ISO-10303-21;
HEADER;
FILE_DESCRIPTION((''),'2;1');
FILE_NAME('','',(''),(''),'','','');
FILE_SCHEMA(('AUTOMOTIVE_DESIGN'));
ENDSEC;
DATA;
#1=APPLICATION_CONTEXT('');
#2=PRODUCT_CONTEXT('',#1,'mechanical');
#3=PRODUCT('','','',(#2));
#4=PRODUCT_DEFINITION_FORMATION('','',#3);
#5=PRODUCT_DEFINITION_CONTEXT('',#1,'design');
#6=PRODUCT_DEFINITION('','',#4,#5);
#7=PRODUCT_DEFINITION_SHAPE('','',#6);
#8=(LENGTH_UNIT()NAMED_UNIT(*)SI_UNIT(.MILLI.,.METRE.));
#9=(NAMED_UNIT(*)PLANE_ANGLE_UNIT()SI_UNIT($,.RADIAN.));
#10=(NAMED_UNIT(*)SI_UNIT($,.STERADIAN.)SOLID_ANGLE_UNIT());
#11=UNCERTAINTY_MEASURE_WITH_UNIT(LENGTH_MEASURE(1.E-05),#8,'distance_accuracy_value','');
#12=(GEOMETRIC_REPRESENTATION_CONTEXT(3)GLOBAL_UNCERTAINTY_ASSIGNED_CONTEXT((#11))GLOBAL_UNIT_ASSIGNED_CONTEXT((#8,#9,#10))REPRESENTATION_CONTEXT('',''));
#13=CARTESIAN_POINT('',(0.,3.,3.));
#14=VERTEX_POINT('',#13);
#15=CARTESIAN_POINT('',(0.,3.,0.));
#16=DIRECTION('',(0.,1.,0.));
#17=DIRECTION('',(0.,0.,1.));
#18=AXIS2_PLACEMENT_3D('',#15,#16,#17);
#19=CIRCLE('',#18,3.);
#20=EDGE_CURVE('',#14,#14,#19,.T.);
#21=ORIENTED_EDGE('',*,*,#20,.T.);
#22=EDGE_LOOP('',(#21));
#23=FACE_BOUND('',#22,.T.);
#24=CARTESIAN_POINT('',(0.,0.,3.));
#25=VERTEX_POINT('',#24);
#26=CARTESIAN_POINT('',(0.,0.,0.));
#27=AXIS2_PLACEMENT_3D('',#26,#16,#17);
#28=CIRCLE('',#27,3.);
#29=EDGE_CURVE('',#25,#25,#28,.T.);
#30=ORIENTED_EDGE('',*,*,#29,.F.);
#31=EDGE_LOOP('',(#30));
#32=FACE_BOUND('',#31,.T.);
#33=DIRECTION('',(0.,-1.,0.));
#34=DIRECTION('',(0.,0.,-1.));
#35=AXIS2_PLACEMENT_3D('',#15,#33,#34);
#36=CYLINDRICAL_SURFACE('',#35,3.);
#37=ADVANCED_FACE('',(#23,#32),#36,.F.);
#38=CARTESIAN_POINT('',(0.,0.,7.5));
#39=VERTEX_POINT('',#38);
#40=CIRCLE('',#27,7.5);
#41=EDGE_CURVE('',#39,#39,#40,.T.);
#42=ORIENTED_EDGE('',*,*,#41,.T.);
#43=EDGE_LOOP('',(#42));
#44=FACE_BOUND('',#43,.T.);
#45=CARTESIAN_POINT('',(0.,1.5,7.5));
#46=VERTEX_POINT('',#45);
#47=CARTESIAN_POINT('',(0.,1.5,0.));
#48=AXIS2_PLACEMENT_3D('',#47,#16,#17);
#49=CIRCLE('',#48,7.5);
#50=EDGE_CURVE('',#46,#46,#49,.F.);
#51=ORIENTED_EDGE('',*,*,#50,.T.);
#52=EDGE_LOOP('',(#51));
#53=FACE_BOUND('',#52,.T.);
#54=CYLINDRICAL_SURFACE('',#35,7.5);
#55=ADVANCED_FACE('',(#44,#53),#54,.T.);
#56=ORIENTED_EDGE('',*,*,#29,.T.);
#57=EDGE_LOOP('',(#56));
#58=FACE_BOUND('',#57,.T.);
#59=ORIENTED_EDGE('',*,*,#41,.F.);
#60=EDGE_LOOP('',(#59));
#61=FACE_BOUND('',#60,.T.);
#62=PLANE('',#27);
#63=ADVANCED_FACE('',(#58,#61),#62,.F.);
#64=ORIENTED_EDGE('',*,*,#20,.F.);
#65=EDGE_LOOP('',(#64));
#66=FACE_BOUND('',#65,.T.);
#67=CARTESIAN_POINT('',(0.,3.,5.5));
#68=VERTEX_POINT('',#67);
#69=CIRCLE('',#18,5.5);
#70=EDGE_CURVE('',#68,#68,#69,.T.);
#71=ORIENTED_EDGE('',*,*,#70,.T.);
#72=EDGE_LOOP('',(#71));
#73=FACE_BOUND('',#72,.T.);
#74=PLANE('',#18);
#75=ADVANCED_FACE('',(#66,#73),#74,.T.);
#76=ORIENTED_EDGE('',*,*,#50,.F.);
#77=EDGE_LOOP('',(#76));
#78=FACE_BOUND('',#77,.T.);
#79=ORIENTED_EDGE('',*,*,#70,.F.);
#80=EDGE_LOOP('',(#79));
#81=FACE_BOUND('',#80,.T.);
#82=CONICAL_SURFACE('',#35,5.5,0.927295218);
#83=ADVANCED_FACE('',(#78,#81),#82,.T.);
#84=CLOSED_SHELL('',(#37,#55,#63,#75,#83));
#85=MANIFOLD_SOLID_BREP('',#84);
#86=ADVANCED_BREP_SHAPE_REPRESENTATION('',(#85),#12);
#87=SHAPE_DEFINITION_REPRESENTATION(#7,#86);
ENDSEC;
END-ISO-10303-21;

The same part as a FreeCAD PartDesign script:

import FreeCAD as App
import Part
import Sketcher
Q = App.Units.Quantity


def edges_at(feature, points):
    """Names of the edges that pass closest to the given points."""
    edges = feature.Shape.Edges
    near = lambda p: min(range(len(edges)), key=lambda i: edges[i].distToShape(Part.Vertex(*p))[0])
    return sorted({f"Edge{near(p) + 1}" for p in points})

doc = App.newDocument("Part")
body = doc.addObject("PartDesign::Body", "Body")

sketch1 = body.newObject("Sketcher::SketchObject", "Sketch")
sketch1.AttachmentSupport = (doc.getObject("XZ_Plane"), [""])
sketch1.MapMode = "FlatFace"
sketch1.addGeometry(Part.Circle(App.Vector(0, 0, 0), App.Vector(0, 0, 1), 7.5), False)
sketch1.addGeometry(Part.Circle(App.Vector(0, 0, 0), App.Vector(0, 0, 1), 3), False)
sketch1.addConstraint(Sketcher.Constraint("Coincident", 0, 3, -1, 1))
sketch1.addConstraint(Sketcher.Constraint("Coincident", 1, 3, -1, 1))
sketch1.addConstraint(Sketcher.Constraint("Diameter", 0, Q("15 mm")))
sketch1.addConstraint(Sketcher.Constraint("Diameter", 1, Q("6 mm")))
pad1 = body.newObject("PartDesign::Pad", "Pad")
pad1.Profile = sketch1
pad1.Length = 3
pad1.Reversed = True
doc.recompute()

chamfer = body.newObject("PartDesign::Chamfer", "Chamfer")
chamfer.Base = (pad1, edges_at(pad1, [(0, 3, -7.5)]))
chamfer.ChamferType = "Two distances"
chamfer.Size = 1.5
chamfer.Size2 = 2

doc.recompute()
